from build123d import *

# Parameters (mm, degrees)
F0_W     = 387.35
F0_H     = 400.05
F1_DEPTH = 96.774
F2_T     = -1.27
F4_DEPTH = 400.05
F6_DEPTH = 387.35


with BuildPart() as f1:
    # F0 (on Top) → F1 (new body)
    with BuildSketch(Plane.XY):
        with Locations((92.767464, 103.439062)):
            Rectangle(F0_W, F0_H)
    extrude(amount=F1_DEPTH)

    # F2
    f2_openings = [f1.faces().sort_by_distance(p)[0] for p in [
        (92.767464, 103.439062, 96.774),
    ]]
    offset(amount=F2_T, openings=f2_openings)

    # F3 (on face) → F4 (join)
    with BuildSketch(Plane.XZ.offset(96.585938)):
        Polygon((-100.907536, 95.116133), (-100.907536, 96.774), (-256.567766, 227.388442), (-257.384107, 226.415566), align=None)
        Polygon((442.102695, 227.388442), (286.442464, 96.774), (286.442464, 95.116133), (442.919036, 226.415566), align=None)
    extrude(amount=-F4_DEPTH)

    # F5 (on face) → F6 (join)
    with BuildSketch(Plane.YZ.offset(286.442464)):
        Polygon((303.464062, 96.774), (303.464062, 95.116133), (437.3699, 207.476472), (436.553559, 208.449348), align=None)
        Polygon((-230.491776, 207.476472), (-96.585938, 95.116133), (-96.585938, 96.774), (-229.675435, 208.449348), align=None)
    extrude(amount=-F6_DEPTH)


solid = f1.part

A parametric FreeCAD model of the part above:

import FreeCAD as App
import Part
import Sketcher
from FreeCAD import Vector
Q = App.Units.Quantity


def faces_at(feature, points):
    """Names of the faces that lie closest to the given points."""
    faces = feature.Shape.Faces
    near = lambda p: min(range(len(faces)), key=lambda i: faces[i].distToShape(Part.Vertex(*p))[0])
    return sorted({f"Face{near(p) + 1}" for p in points})


def add_polygon(sketch, points):
    """Adds a closed chain of lines whose ends are joined by coincident constraints."""
    first, n = sketch.GeometryCount, len(points)
    for a, b in zip(points, points[1:] + points[:1]):
        sketch.addGeometry(Part.LineSegment(App.Vector(*a, 0), App.Vector(*b, 0)), False)
    for i in range(n):
        sketch.addConstraint(Sketcher.Constraint("Coincident", first + i, 2, first + (i + 1) % n, 1))

doc = App.newDocument("Part")
body = doc.addObject("PartDesign::Body", "Body")

# Sketch on XY plane
sketch1 = doc.addObject("Sketcher::SketchObject", "Sketch")
body.addObject(sketch1)
sketch1.AttachmentSupport = (doc.XY_Plane, [""])
sketch1.MapMode = "FlatFace"
add_polygon(sketch1, [(-100.907536, 303.464062), (-100.907536, -96.585938), (286.442464, -96.585938), (286.442464, 303.464062)])  # lines 0-3
sketch1.addConstraint([
    Sketcher.Constraint("Vertical", 0),
    Sketcher.Constraint("Horizontal", 1),
    Sketcher.Constraint("Vertical", 2),
    Sketcher.Constraint("Horizontal", 3),
    Sketcher.Constraint("DistanceX", 1, 1, 1, 2, Q("15.25 in")),
    Sketcher.Constraint("DistanceY", 0, 2, 0, 1, Q("15.75 in")),
    Sketcher.Constraint("DistanceY", 0, 2, -1, 1, Q("96.585938 mm")),
    Sketcher.Constraint("DistanceX", 0, 2, -1, 1, Q("100.907536 mm")),
])
pad1 = doc.addObject("PartDesign::Pad", "Pad")
body.addObject(pad1)
pad1.Profile = sketch1
pad1.Length = Q("3.81 in")
doc.recompute()

thickness = doc.addObject("PartDesign::Thickness", "Thickness")
body.addObject(thickness)
thickness.Base = (pad1, faces_at(pad1, [(92.767, 103.439, 96.774)]))
thickness.Value = Q("0.05 in")
thickness.Reversed = True
thickness.Join = "Arc"

# Sketch on XZ plane
sketch2 = doc.addObject("Sketcher::SketchObject", "Sketch001")
body.addObject(sketch2)
sketch2.AttachmentSupport = (doc.XZ_Plane, [""])
sketch2.MapMode = "FlatFace"
sketch2.AttachmentOffset = App.Placement(Vector(0, 0, 96.585938), App.Rotation())
add_polygon(sketch2, [(-100.907536, 95.116133), (-100.907536, 96.774), (-256.567766, 227.388442), (-257.384107, 226.415566)])  # lines 0-3
add_polygon(sketch2, [(442.102695, 227.388442), (286.442464, 96.774), (286.442464, 95.116133), (442.919036, 226.415566)])  # lines 4-7
sketch2.addConstraint([
    Sketcher.Constraint("Vertical", 0),
    Sketcher.Constraint("Vertical", 5),
    Sketcher.Constraint("Perpendicular", 1, 2),
    Sketcher.Constraint("Perpendicular", 2, 3),
    Sketcher.Constraint("Parallel", 4, 6),
    Sketcher.Constraint("Perpendicular", 6, 7),
    Sketcher.Constraint("Horizontal", 0, 2, 4, 2),
    Sketcher.Constraint("Horizontal", 3, 2, 5, 2),
    Sketcher.Constraint("Horizontal", 2, 2, 6, 2),
    Sketcher.Constraint("Horizontal", 1, 2, 7, 2),
    Sketcher.Constraint("Distance", 1, Q("8 in")),
    Sketcher.Constraint("Angle", 1, Q("140 deg")),
    Sketcher.Constraint("Distance", 2, Q("0.05 in")),
    Sketcher.Constraint("DistanceY", -1, 1, 0, 2, Q("3.81 in")),
    Sketcher.Constraint("DistanceX", 0, 2, 4, 2, Q("15.25 in")),
    Sketcher.Constraint("DistanceX", 0, 2, -1, 1, Q("100.907536 mm")),
])
pad2 = doc.addObject("PartDesign::Pad", "Pad001")
body.addObject(pad2)
pad2.Profile = sketch2
pad2.Length = Q("15.75 in")
pad2.Reversed = True

# Sketch on YZ plane
sketch3 = doc.addObject("Sketcher::SketchObject", "Sketch002")
body.addObject(sketch3)
sketch3.AttachmentSupport = (doc.YZ_Plane, [""])
sketch3.MapMode = "FlatFace"
sketch3.AttachmentOffset = App.Placement(Vector(0, 0, 286.442464), App.Rotation())
add_polygon(sketch3, [(303.464062, 96.774), (303.464062, 95.116133), (437.3699, 207.476472), (436.553559, 208.449348)])  # lines 0-3
add_polygon(sketch3, [(-230.491776, 207.476472), (-96.585938, 95.116133), (-96.585938, 96.774), (-229.675435, 208.449348)])  # lines 4-7
sketch3.addConstraint([
    Sketcher.Constraint("Vertical", 0),
    Sketcher.Constraint("Vertical", 5),
    Sketcher.Constraint("Perpendicular", 1, 2),
    Sketcher.Constraint("Perpendicular", 2, 3),
    Sketcher.Constraint("Parallel", 4, 6),
    Sketcher.Constraint("Perpendicular", 6, 7),
    Sketcher.Constraint("Horizontal", 0, 2, 4, 2),
    Sketcher.Constraint("Horizontal", 3, 2, 5, 2),
    Sketcher.Constraint("Horizontal", 2, 2, 6, 2),
    Sketcher.Constraint("Horizontal", 1, 2, 7, 2),
    Sketcher.Constraint("Angle", 1, Q("40 deg")),
    Sketcher.Constraint("Distance", 2, Q("0.05 in")),
    Sketcher.Constraint("Distance", 3, Q("6.84 in")),
    Sketcher.Constraint("DistanceY", -1, 1, 3, 2, Q("3.81 in")),
    Sketcher.Constraint("DistanceX", 4, 2, 0, 2, Q("15.75 in")),
    Sketcher.Constraint("DistanceX", -1, 1, 1, 2, Q("437.3699 mm")),
])
pad3 = doc.addObject("PartDesign::Pad", "Pad002")
body.addObject(pad3)
pad3.Profile = sketch3
pad3.Length = Q("15.25 in")
pad3.Reversed = True

doc.recompute()
